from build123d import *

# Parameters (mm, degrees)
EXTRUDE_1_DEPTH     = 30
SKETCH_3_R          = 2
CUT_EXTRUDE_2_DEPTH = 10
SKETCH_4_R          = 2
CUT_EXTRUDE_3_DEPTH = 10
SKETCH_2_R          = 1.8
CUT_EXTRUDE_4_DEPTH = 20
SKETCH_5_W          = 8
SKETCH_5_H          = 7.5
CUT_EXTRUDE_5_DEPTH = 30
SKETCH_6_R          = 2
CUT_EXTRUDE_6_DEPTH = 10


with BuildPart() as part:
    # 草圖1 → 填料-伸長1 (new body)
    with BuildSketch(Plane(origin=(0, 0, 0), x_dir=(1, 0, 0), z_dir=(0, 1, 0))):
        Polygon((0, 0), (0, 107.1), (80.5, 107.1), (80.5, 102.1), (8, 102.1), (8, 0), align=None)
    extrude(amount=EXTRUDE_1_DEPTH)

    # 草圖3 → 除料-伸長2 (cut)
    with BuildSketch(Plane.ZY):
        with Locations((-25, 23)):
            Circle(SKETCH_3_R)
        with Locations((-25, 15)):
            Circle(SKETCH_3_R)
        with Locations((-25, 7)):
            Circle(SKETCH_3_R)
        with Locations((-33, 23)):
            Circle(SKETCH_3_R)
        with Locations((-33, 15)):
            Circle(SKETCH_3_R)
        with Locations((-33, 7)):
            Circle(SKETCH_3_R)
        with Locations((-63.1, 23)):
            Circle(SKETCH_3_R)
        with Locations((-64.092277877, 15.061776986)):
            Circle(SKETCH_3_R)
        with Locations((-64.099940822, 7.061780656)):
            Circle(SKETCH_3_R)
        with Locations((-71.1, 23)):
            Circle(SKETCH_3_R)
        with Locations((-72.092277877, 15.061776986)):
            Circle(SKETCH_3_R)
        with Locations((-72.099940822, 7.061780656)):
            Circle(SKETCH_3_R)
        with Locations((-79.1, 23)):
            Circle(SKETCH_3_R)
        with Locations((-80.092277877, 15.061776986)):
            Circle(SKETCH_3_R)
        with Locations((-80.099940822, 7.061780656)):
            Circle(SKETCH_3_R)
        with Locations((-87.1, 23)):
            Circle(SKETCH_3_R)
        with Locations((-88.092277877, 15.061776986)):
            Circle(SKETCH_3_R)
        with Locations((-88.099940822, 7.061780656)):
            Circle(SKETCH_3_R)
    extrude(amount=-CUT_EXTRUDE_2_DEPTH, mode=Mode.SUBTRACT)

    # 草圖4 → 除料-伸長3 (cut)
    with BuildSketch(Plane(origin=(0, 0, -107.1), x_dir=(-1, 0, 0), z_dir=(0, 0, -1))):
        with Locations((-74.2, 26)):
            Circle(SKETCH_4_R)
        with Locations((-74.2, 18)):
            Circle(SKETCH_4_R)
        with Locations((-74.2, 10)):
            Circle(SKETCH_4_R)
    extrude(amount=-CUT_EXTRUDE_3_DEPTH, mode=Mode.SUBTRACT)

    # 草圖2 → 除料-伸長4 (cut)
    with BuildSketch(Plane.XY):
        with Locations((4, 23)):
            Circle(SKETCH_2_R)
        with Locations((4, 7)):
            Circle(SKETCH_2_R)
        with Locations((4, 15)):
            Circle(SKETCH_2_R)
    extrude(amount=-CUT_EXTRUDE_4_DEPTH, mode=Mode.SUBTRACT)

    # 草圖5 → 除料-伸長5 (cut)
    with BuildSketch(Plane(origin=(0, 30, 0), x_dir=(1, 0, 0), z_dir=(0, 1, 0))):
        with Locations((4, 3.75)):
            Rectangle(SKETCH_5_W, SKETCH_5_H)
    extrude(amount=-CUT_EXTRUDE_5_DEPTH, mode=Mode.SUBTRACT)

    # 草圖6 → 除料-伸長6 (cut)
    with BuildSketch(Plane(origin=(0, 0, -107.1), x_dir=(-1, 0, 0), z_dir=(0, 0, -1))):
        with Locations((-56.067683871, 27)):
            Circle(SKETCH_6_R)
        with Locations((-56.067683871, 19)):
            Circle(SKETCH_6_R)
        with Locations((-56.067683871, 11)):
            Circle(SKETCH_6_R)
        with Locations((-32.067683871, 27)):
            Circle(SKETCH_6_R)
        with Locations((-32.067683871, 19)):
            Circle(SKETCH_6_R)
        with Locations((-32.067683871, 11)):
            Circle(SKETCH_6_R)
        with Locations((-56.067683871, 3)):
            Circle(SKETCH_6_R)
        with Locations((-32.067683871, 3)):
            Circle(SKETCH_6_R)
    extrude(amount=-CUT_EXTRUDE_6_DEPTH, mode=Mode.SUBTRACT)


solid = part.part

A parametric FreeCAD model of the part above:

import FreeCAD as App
import Part
import Sketcher

V = App.Vector


def add_polygon(sketch, points):
    """Adds a closed chain of lines whose ends are joined by coincident constraints."""
    first, n = sketch.GeometryCount, len(points)
    for a, b in zip(points, points[1:] + points[:1]):
        sketch.addGeometry(Part.LineSegment(App.Vector(*a, 0), App.Vector(*b, 0)), False)
    for i in range(n):
        sketch.addConstraint(Sketcher.Constraint("Coincident", first + i, 2, first + (i + 1) % n, 1))

doc = App.newDocument("Part")
body = doc.addObject("PartDesign::Body", "Body")

# Sketch on XZ plane
sketch1 = body.newObject("Sketcher::SketchObject", "Sketch")
sketch1.AttachmentSupport = (doc.getObject("XZ_Plane"), [""])
sketch1.MapMode = "FlatFace"
add_polygon(sketch1, [(0, -107.1), (0, 0), (8, 0), (8, -102.1), (80.5, -102.1), (80.5, -107.1)])  # lines 0-5
sketch1.addConstraint([
    Sketcher.Constraint("Vertical", 0),
    Sketcher.Constraint("Horizontal", 1),
    Sketcher.Constraint("Vertical", 2),
    Sketcher.Constraint("Horizontal", 3),
    Sketcher.Constraint("Vertical", 4),
    Sketcher.Constraint("Horizontal", 5),
    Sketcher.Constraint("Coincident", 0, 2, -1, 1),
    Sketcher.Constraint("DistanceX", 1, 1, 1, 2, 8.0),
    Sketcher.Constraint("DistanceY", 4, 2, 4, 1, 5.0),
    Sketcher.Constraint("DistanceX", 3, 1, 3, 2, 72.5),
    Sketcher.Constraint("DistanceY", 0, 1, 0, 2, 107.1),
])
pad1 = body.newObject("PartDesign::Pad", "Pad")
pad1.Profile = sketch1
pad1.Length = 30
pad1.Reversed = True

# Sketch on YZ plane
sketch2 = body.newObject("Sketcher::SketchObject", "Sketch001")
sketch2.AttachmentSupport = (doc.getObject("YZ_Plane"), [""])
sketch2.MapMode = "FlatFace"
sketch2.addGeometry([
    Part.Circle(V(23, -25, 0), V(0, 0, 1), 2),  # 0
    Part.Circle(V(15, -25, 0), V(0, 0, 1), 2),  # 1
    Part.Circle(V(7, -25, 0), V(0, 0, 1), 2),  # 2
    Part.Circle(V(23, -33, 0), V(0, 0, 1), 2),  # 3
    Part.Circle(V(15, -33, 0), V(0, 0, 1), 2),  # 4
    Part.Circle(V(7, -33, 0), V(0, 0, 1), 2),  # 5
    Part.Circle(V(23, -63.1, 0), V(0, 0, 1), 2),  # 6
    Part.Circle(V(15.061777, -64.092278, 0), V(0, 0, 1), 2),  # 7
    Part.Circle(V(7.061781, -64.099941, 0), V(0, 0, 1), 2),  # 8
    Part.Circle(V(23, -71.1, 0), V(0, 0, 1), 2),  # 9
    Part.Circle(V(15.061777, -72.092278, 0), V(0, 0, 1), 2),  # 10
    Part.Circle(V(7.061781, -72.099941, 0), V(0, 0, 1), 2),  # 11
    Part.Circle(V(23, -79.1, 0), V(0, 0, 1), 2),  # 12
    Part.Circle(V(15.061777, -80.092278, 0), V(0, 0, 1), 2),  # 13
    Part.Circle(V(7.061781, -80.099941, 0), V(0, 0, 1), 2),  # 14
    Part.Circle(V(23, -87.1, 0), V(0, 0, 1), 2),  # 15
    Part.Circle(V(15.061777, -88.092278, 0), V(0, 0, 1), 2),  # 16
    Part.Circle(V(7.061781, -88.099941, 0), V(0, 0, 1), 2),  # 17
], False)
sketch2.addConstraint([
    Sketcher.Constraint("Equal", 0, 1),
    Sketcher.Constraint("Equal", 1, 2),
    Sketcher.Constraint("Equal", 2, 3),
    Sketcher.Constraint("Equal", 3, 4),
    Sketcher.Constraint("Equal", 4, 5),
    Sketcher.Constraint("Equal", 5, 6),
    Sketcher.Constraint("Equal", 6, 7),
    Sketcher.Constraint("Equal", 7, 8),
    Sketcher.Constraint("Equal", 8, 9),
    Sketcher.Constraint("Equal", 9, 10),
    Sketcher.Constraint("Equal", 10, 11),
    Sketcher.Constraint("Equal", 11, 12),
    Sketcher.Constraint("Equal", 12, 13),
    Sketcher.Constraint("Equal", 13, 14),
    Sketcher.Constraint("Equal", 14, 15),
    Sketcher.Constraint("Equal", 15, 16),
    Sketcher.Constraint("Equal", 16, 17),
    Sketcher.Constraint("Horizontal", 0, 3, 1, 3),
    Sketcher.Constraint("Horizontal", 1, 3, 2, 3),
    Sketcher.Constraint("Horizontal", 3, 3, 4, 3),
    Sketcher.Constraint("Horizontal", 4, 3, 5, 3),
    Sketcher.Constraint("Vertical", 0, 3, 3, 3),
    Sketcher.Constraint("Vertical", 1, 3, 4, 3),
    Sketcher.Constraint("Vertical", 2, 3, 5, 3),
    Sketcher.Constraint("Vertical", 3, 3, 6, 3),
    Sketcher.Constraint("Vertical", 6, 3, 9, 3),
    Sketcher.Constraint("Vertical", 7, 3, 10, 3),
    Sketcher.Constraint("Vertical", 8, 3, 11, 3),
    Sketcher.Constraint("Vertical", 9, 3, 12, 3),
    Sketcher.Constraint("Vertical", 10, 3, 13, 3),
    Sketcher.Constraint("Vertical", 11, 3, 14, 3),
    Sketcher.Constraint("Vertical", 12, 3, 15, 3),
    Sketcher.Constraint("Vertical", 13, 3, 16, 3),
    Sketcher.Constraint("Vertical", 14, 3, 17, 3),
    Sketcher.Constraint("Diameter", 0, 4.0),
    Sketcher.Constraint("DistanceX", -1, 1, 0, 3, 23.0),
    Sketcher.Constraint("DistanceY", 0, 3, -1, 1, 25.0),
    Sketcher.Constraint("DistanceX", -1, 1, 1, 3, 15.0),
    Sketcher.Constraint("DistanceX", -1, 1, 2, 3, 7.0),
    Sketcher.Constraint("DistanceY", 3, 3, -1, 1, 33.0),
    Sketcher.Constraint("DistanceY", 9, 3, 6, 3, 8.0),
    Sketcher.Constraint("DistanceY", 10, 3, 7, 3, 8.0),
    Sketcher.Constraint("DistanceY", 11, 3, 8, 3, 8.0),
    Sketcher.Constraint("DistanceY", 12, 3, 9, 3, 8.0),
    Sketcher.Constraint("DistanceY", 13, 3, 10, 3, 8.0),
    Sketcher.Constraint("DistanceY", 14, 3, 11, 3, 8.0),
    Sketcher.Constraint("DistanceY", 15, 3, 12, 3, 8.0),
    Sketcher.Constraint("DistanceY", 16, 3, 13, 3, 8.0),
    Sketcher.Constraint("DistanceY", 17, 3, 14, 3, 8.0),
    Sketcher.Constraint("DistanceY", 6, 3, -1, 1, 63.1),
    Sketcher.Constraint("DistanceX", -1, 1, 8, 3, 7.061781),
    Sketcher.Constraint("DistanceY", 8, 3, -1, 1, 64.099941),
    Sketcher.Constraint("DistanceX", -1, 1, 7, 3, 15.061777),
    Sketcher.Constraint("DistanceY", 7, 3, -1, 1, 64.092278),
])
pocket1 = body.newObject("PartDesign::Pocket", "Pocket")
pocket1.Profile = sketch2
pocket1.Length = 10
pocket1.Reversed = True

# Sketch on XY plane
sketch3 = body.newObject("Sketcher::SketchObject", "Sketch002")
sketch3.AttachmentSupport = (doc.getObject("XY_Plane"), [""])
sketch3.MapMode = "FlatFace"
sketch3.AttachmentOffset = App.Placement(V(0, 0, -107.1), App.Rotation())
sketch3.addGeometry([
    Part.Circle(V(74.2, 26, 0), V(0, 0, 1), 2),
    Part.Circle(V(74.2, 18, 0), V(0, 0, 1), 2),
    Part.Circle(V(74.2, 10, 0), V(0, 0, 1), 2),
], False)
sketch3.addConstraint([
    Sketcher.Constraint("Equal", 0, 1),
    Sketcher.Constraint("Equal", 1, 2),
    Sketcher.Constraint("Vertical", 0, 3, 1, 3),
    Sketcher.Constraint("Vertical", 1, 3, 2, 3),
    Sketcher.Constraint("Diameter", 0, 4.0),
    Sketcher.Constraint("DistanceY", -1, 1, 0, 3, 26.0),
    Sketcher.Constraint("DistanceY", -1, 1, 1, 3, 18.0),
    Sketcher.Constraint("DistanceY", -1, 1, 2, 3, 10.0),
    Sketcher.Constraint("DistanceX", -1, 1, 0, 3, 74.2),
])
pocket2 = body.newObject("PartDesign::Pocket", "Pocket001")
pocket2.Profile = sketch3
pocket2.Length = 10
pocket2.Reversed = True

# Sketch on XY plane
sketch4 = body.newObject("Sketcher::SketchObject", "Sketch003")
sketch4.AttachmentSupport = (doc.getObject("XY_Plane"), [""])
sketch4.MapMode = "FlatFace"
sketch4.addGeometry([
    Part.Circle(V(4, 23, 0), V(0, 0, 1), 1.8),
    Part.Circle(V(4, 7, 0), V(0, 0, 1), 1.8),
    Part.Circle(V(4, 15, 0), V(0, 0, 1), 1.8),
], False)
sketch4.addConstraint([
    Sketcher.Constraint("Equal", 0, 1),
    Sketcher.Constraint("Equal", 1, 2),
    Sketcher.Constraint("Vertical", 0, 3, 1, 3),
    Sketcher.Constraint("Vertical", 1, 3, 2, 3),
    Sketcher.Constraint("Diameter", 0, 3.6),
    Sketcher.Constraint("DistanceX", -1, 1, 0, 3, 4.0),
    Sketcher.Constraint("DistanceY", -1, 1, 0, 3, 23.0),
    Sketcher.Constraint("DistanceY", -1, 1, 1, 3, 7.0),
    Sketcher.Constraint("DistanceY", -1, 1, 2, 3, 15.0),
])
pocket3 = body.newObject("PartDesign::Pocket", "Pocket002")
pocket3.Profile = sketch4
pocket3.Length = 20

# Sketch on XZ plane
sketch5 = body.newObject("Sketcher::SketchObject", "Sketch004")
sketch5.AttachmentSupport = (doc.getObject("XZ_Plane"), [""])
sketch5.MapMode = "FlatFace"
sketch5.AttachmentOffset = App.Placement(V(0, 0, -30), App.Rotation())
add_polygon(sketch5, [(0, -7.5), (0, 0), (8, 0), (8, -7.5)])  # lines 0-3
sketch5.addConstraint([
    Sketcher.Constraint("Vertical", 0),
    Sketcher.Constraint("Horizontal", 1),
    Sketcher.Constraint("Vertical", 2),
    Sketcher.Constraint("Horizontal", 3),
    Sketcher.Constraint("Coincident", 0, 2, -1, 1),
    Sketcher.Constraint("DistanceX", 1, 1, 1, 2, 8.0),
    Sketcher.Constraint("DistanceY", 0, 1, 0, 2, 7.5),
])
pocket4 = body.newObject("PartDesign::Pocket", "Pocket003")
pocket4.Profile = sketch5
pocket4.Length = 30
pocket4.Reversed = True

# Sketch on XY plane
sketch6 = body.newObject("Sketcher::SketchObject", "Sketch005")
sketch6.AttachmentSupport = (doc.getObject("XY_Plane"), [""])
sketch6.MapMode = "FlatFace"
sketch6.AttachmentOffset = App.Placement(V(0, 0, -107.1), App.Rotation())
sketch6.addGeometry([
    Part.Circle(V(56.067684, 27, 0), V(0, 0, 1), 2),  # 0
    Part.Circle(V(56.067684, 19, 0), V(0, 0, 1), 2),  # 1
    Part.Circle(V(56.067684, 11, 0), V(0, 0, 1), 2),  # 2
    Part.Circle(V(32.067684, 27, 0), V(0, 0, 1), 2),  # 3
    Part.Circle(V(32.067684, 19, 0), V(0, 0, 1), 2),  # 4
    Part.Circle(V(32.067684, 11, 0), V(0, 0, 1), 2),  # 5
    Part.Circle(V(56.067684, 3, 0), V(0, 0, 1), 2),  # 6
    Part.Circle(V(32.067684, 3, 0), V(0, 0, 1), 2),  # 7
], False)
sketch6.addConstraint([
    Sketcher.Constraint("Equal", 0, 1),
    Sketcher.Constraint("Equal", 1, 2),
    Sketcher.Constraint("Equal", 2, 3),
    Sketcher.Constraint("Equal", 3, 4),
    Sketcher.Constraint("Equal", 4, 5),
    Sketcher.Constraint("Equal", 5, 6),
    Sketcher.Constraint("Equal", 6, 7),
    Sketcher.Constraint("Horizontal", 0, 3, 3, 3),
    Sketcher.Constraint("Horizontal", 1, 3, 4, 3),
    Sketcher.Constraint("Horizontal", 2, 3, 5, 3),
    Sketcher.Constraint("Horizontal", 6, 3, 7, 3),
    Sketcher.Constraint("Vertical", 0, 3, 1, 3),
    Sketcher.Constraint("Vertical", 1, 3, 2, 3),
    Sketcher.Constraint("Vertical", 3, 3, 4, 3),
    Sketcher.Constraint("Vertical", 4, 3, 5, 3),
    Sketcher.Constraint("Vertical", 2, 3, 6, 3),
    Sketcher.Constraint("Vertical", 5, 3, 7, 3),
    Sketcher.Constraint("Diameter", 0, 4.0),
    Sketcher.Constraint("DistanceY", -1, 1, 0, 3, 27.0),
    Sketcher.Constraint("DistanceY", -1, 1, 1, 3, 19.0),
    Sketcher.Constraint("DistanceY", -1, 1, 2, 3, 11.0),
    Sketcher.Constraint("DistanceY", -1, 1, 6, 3, 3.0),
    Sketcher.Constraint("DistanceX", 3, 3, 0, 3, 24.0),
    Sketcher.Constraint("DistanceX", -1, 1, 0, 3, 56.067684),
])
pocket5 = body.newObject("PartDesign::Pocket", "Pocket004")
pocket5.Profile = sketch6
pocket5.Length = 10
pocket5.Reversed = True

doc.recompute()
